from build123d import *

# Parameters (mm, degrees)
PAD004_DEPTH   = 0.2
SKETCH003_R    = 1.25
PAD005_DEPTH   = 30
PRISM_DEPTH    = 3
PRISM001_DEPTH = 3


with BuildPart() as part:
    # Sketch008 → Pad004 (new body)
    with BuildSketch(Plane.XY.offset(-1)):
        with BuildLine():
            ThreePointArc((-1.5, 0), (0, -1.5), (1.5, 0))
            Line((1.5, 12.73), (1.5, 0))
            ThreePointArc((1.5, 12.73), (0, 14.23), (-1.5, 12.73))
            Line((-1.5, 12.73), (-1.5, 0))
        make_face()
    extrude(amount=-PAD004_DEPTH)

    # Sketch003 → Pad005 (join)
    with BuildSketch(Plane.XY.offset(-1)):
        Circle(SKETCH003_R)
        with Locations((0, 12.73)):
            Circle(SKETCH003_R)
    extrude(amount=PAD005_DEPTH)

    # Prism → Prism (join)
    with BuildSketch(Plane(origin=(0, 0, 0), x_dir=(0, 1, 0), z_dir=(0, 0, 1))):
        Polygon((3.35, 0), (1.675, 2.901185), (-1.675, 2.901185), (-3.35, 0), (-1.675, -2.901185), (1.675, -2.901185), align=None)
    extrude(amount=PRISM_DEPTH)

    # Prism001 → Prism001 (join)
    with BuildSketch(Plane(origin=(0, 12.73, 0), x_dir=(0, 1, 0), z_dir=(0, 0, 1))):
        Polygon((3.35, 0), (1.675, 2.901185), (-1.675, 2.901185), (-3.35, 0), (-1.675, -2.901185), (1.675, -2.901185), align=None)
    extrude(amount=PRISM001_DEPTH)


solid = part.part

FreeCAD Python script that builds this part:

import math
import FreeCAD as App
import Part
import Sketcher
Q = App.Units.Quantity


def add_polygon(sketch, points):
    """Adds a closed chain of lines whose ends are joined by coincident constraints."""
    first, n = sketch.GeometryCount, len(points)
    for a, b in zip(points, points[1:] + points[:1]):
        sketch.addGeometry(Part.LineSegment(App.Vector(*a, 0), App.Vector(*b, 0)), False)
    for i in range(n):
        sketch.addConstraint(Sketcher.Constraint("Coincident", first + i, 2, first + (i + 1) % n, 1))

doc = App.newDocument("Part")
body = doc.addObject("PartDesign::Body", "Body")

# Sketch on XY plane
sketch1 = body.newObject("Sketcher::SketchObject", "Sketch")
sketch1.AttachmentSupport = (doc.getObject("XY_Plane"), [""])
sketch1.MapMode = "FlatFace"
sketch1.AttachmentOffset = App.Placement(App.Vector(0, 0, -1), App.Rotation())
sketch1.addGeometry([
    Part.ArcOfCircle(Part.Circle(App.Vector(0, 0, 0), App.Vector(0, 0, 1), 1.5), math.radians(180), math.radians(360)),
    Part.LineSegment(App.Vector(1.5, 0, 0), App.Vector(1.5, 12.7, 0)),
    Part.ArcOfCircle(Part.Circle(App.Vector(0, 12.7, 0), App.Vector(0, 0, 1), 1.5), math.radians(0), math.radians(180)),
    Part.LineSegment(App.Vector(-1.5, 12.7, 0), App.Vector(-1.5, 0, 0)),
], False)
sketch1.addConstraint([
    Sketcher.Constraint("Tangent", 0, 2, 1, 1),
    Sketcher.Constraint("Tangent", 1, 2, 2, 1),
    Sketcher.Constraint("Tangent", 2, 2, 3, 1),
    Sketcher.Constraint("Tangent", 3, 2, 0, 1),
    Sketcher.Constraint("Vertical", 1),
    Sketcher.Constraint("Vertical", 3),
    Sketcher.Constraint("Coincident", 0, 3, -1, 1),
    Sketcher.Constraint("Radius", 0, Q("1.5 mm")),
    Sketcher.Constraint("DistanceY", 1, 1, 1, 2, Q("12.73 mm")),
])
pad1 = body.newObject("PartDesign::Pad", "Pad")
pad1.Profile = sketch1
pad1.Length = 0.2
pad1.Reversed = True

# Sketch on XY plane
sketch2 = body.newObject("Sketcher::SketchObject", "Sketch001")
sketch2.AttachmentSupport = (doc.getObject("XY_Plane"), [""])
sketch2.MapMode = "FlatFace"
sketch2.AttachmentOffset = App.Placement(App.Vector(0, 0, -1), App.Rotation())
sketch2.addGeometry([
    Part.Circle(App.Vector(0, 0, 0), App.Vector(0, 0, 1), 1.2),
    Part.Circle(App.Vector(0, 12.7, 0), App.Vector(0, 0, 1), 1.2),
], False)
sketch2.addConstraint([
    Sketcher.Constraint("Coincident", 0, 3, -1, 1),
    Sketcher.Constraint("Equal", 0, 1),
    Sketcher.Constraint("PointOnObject", 1, 3, -2),
    Sketcher.Constraint("Diameter", 0, Q("2.5 mm")),
    Sketcher.Constraint("DistanceY", -1, 1, 1, 3, Q("12.73 mm")),
])
pad2 = body.newObject("PartDesign::Pad", "Pad001")
pad2.Profile = sketch2
pad2.Length = 30

# Sketch on XY plane
sketch3 = body.newObject("Sketcher::SketchObject", "Sketch002")
sketch3.AttachmentSupport = (doc.getObject("XY_Plane"), [""])
sketch3.MapMode = "FlatFace"
add_polygon(sketch3, [(0, 3.4), (-2.9, 1.7), (-2.9, -1.7), (0, -3.4), (2.9, -1.7), (2.9, 1.7)])  # lines 0-5
sketch3.addConstraint([
    Sketcher.Constraint("Vertical", 1),
    Sketcher.Constraint("Vertical", 4),
    Sketcher.Constraint("Symmetric", 0, 2, 3, 2, -1, 1),
    Sketcher.Constraint("Symmetric", 2, 2, 5, 2, -1, 1),
    Sketcher.Constraint("PointOnObject", 2, 2, -2),
    Sketcher.Constraint("Parallel", 2, 5),
    Sketcher.Constraint("Horizontal", 1, 2, 3, 2),
    Sketcher.Constraint("Angle", 0, Q("-149.999999 deg")),
    Sketcher.Constraint("DistanceY", 1, 2, 1, 1, Q("3.35 mm")),
    Sketcher.Constraint("DistanceY", 2, 2, 5, 2, Q("6.7 mm")),
])
pad3 = body.newObject("PartDesign::Pad", "Pad002")
pad3.Profile = sketch3
pad3.Length = 3

# Sketch on XY plane
sketch4 = body.newObject("Sketcher::SketchObject", "Sketch003")
sketch4.AttachmentSupport = (doc.getObject("XY_Plane"), [""])
sketch4.MapMode = "FlatFace"
add_polygon(sketch4, [(0, 16.1), (-2.9, 14.4), (-2.9, 11.1), (0, 9.4), (2.9, 11.1), (2.9, 14.4)])  # lines 0-5
sketch4.addConstraint([
    Sketcher.Constraint("Vertical", 1),
    Sketcher.Constraint("Vertical", 4),
    Sketcher.Constraint("Symmetric", 1, 2, 3, 2, -2),
    Sketcher.Constraint("PointOnObject", 2, 2, -2),
    Sketcher.Constraint("PointOnObject", 5, 2, -2),
    Sketcher.Constraint("Parallel", 0, 3),
    Sketcher.Constraint("Parallel", 2, 5),
    Sketcher.Constraint("Angle", 0, Q("-149.999999 deg")),
    Sketcher.Constraint("DistanceY", 1, 2, 1, 1, Q("3.35 mm")),
    Sketcher.Constraint("DistanceY", 2, 2, 5, 2, Q("6.7 mm")),
    Sketcher.Constraint("DistanceY", -1, 1, 2, 2, Q("9.38 mm")),
])
pad4 = body.newObject("PartDesign::Pad", "Pad003")
pad4.Profile = sketch4
pad4.Length = 3

doc.recompute()
